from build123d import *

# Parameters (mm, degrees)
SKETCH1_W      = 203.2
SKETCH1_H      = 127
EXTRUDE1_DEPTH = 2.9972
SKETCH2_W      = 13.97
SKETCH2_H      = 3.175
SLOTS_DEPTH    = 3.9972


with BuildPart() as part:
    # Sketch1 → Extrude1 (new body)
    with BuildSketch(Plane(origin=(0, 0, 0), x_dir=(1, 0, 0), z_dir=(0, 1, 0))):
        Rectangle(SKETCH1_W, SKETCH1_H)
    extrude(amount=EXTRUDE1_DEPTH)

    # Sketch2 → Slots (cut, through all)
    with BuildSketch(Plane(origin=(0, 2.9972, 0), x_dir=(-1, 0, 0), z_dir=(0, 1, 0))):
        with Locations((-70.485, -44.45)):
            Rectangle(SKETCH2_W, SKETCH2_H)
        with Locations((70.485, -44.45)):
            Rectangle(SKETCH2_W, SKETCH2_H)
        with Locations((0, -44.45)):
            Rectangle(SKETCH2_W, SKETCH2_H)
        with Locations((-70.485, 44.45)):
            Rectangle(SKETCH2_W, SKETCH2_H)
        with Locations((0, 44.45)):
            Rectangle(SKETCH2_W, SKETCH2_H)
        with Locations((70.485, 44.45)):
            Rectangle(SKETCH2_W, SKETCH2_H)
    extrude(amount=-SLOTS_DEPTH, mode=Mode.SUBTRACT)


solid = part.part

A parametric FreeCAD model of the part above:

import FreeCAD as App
import Part
import Sketcher
from FreeCAD import Vector
Q = App.Units.Quantity


def add_polygon(sketch, points):
    """Adds a closed chain of lines whose ends are joined by coincident constraints."""
    first, n = sketch.GeometryCount, len(points)
    for a, b in zip(points, points[1:] + points[:1]):
        sketch.addGeometry(Part.LineSegment(App.Vector(*a, 0), App.Vector(*b, 0)), False)
    for i in range(n):
        sketch.addConstraint(Sketcher.Constraint("Coincident", first + i, 2, first + (i + 1) % n, 1))

doc = App.newDocument("Part")
body = doc.addObject("PartDesign::Body", "Body")

sketch1 = doc.addObject("Sketcher::SketchObject", "Sketch")
body.addObject(sketch1)
sketch1.AttachmentSupport = (doc.XZ_Plane, [""])
sketch1.MapMode = "FlatFace"
add_polygon(sketch1, [(-102, -64), (-102, 64), (102, 64), (102, -64)])
sketch1.addConstraint([
    Sketcher.Constraint("Vertical", 0),
    Sketcher.Constraint("Horizontal", 1),
    Sketcher.Constraint("Vertical", 2),
    Sketcher.Constraint("Horizontal", 3),
    Sketcher.Constraint("Symmetric", 0, 2, 2, 2, -1, 1),
    Sketcher.Constraint("DistanceX", 1, 1, 1, 2, Q("8 in")),
    Sketcher.Constraint("DistanceY", 0, 1, 0, 2, Q("5 in")),
])
pad1 = doc.addObject("PartDesign::Pad", "Pad")
body.addObject(pad1)
pad1.Profile = sketch1
pad1.Length = Q("0.118 in")
pad1.Reversed = True

sketch2 = doc.addObject("Sketcher::SketchObject", "Sketch001")
body.addObject(sketch2)
sketch2.AttachmentSupport = (doc.XZ_Plane, [""])
sketch2.MapMode = "FlatFace"
sketch2.AttachmentOffset = App.Placement(Vector(0, 0, -0.118 * 25.4), App.Rotation())
add_polygon(sketch2, [(77.5, -42.9), (77.5, -46), (63.5, -46), (63.5, -42.9)])
add_polygon(sketch2, [(-63.5, -42.9), (-63.5, -46), (-77.5, -46), (-77.5, -42.9)])
add_polygon(sketch2, [(7, -42.9), (7, -46), (-7, -46), (-7, -42.9)])
add_polygon(sketch2, [(77.5, 46), (77.5, 42.9), (63.5, 42.9), (63.5, 46)])
add_polygon(sketch2, [(7, 46), (7, 42.9), (-7, 42.9), (-7, 46)])
add_polygon(sketch2, [(-63.5, 46), (-63.5, 42.9), (-77.5, 42.9), (-77.5, 46)])
sketch2.addConstraint([
    Sketcher.Constraint("Vertical", 0),
    Sketcher.Constraint("Horizontal", 1),
    Sketcher.Constraint("Vertical", 2),
    Sketcher.Constraint("Horizontal", 3),
    Sketcher.Constraint("Vertical", 4),
    Sketcher.Constraint("Horizontal", 5),
    Sketcher.Constraint("Vertical", 6),
    Sketcher.Constraint("Horizontal", 7),
    Sketcher.Constraint("Vertical", 8),
    Sketcher.Constraint("Horizontal", 9),
    Sketcher.Constraint("Vertical", 10),
    Sketcher.Constraint("Horizontal", 11),
    Sketcher.Constraint("Vertical", 12),
    Sketcher.Constraint("Horizontal", 13),
    Sketcher.Constraint("Vertical", 14),
    Sketcher.Constraint("Horizontal", 15),
    Sketcher.Constraint("Vertical", 16),
    Sketcher.Constraint("Horizontal", 17),
    Sketcher.Constraint("Vertical", 18),
    Sketcher.Constraint("Horizontal", 19),
    Sketcher.Constraint("Vertical", 20),
    Sketcher.Constraint("Horizontal", 21),
    Sketcher.Constraint("Vertical", 22),
    Sketcher.Constraint("Horizontal", 23),
    Sketcher.Constraint("Symmetric", 6, 2, 12, 2, -1, 1),
    Sketcher.Constraint("Symmetric", 4, 2, 14, 2, -1, 1),
    Sketcher.Constraint("Symmetric", 10, 2, 16, 2, -1, 1),
    Sketcher.Constraint("Symmetric", 8, 2, 18, 2, -1, 1),
    Sketcher.Constraint("Symmetric", 2, 2, 20, 2, -1, 1),
    Sketcher.Constraint("Symmetric", 0, 2, 22, 2, -1, 1),
    Sketcher.Constraint("Symmetric", 1, 2, 4, 2, -2),
    Sketcher.Constraint("Symmetric", 3, 2, 6, 2, -2),
    Sketcher.Constraint("Horizontal", 5, 2, 8, 2),
    Sketcher.Constraint("Horizontal", 7, 2, 10, 2),
    Sketcher.Constraint("Vertical", 11, 2, 16, 2),
    Sketcher.Constraint("Equal", 7, 9),
    Sketcher.Constraint("DistanceX", 4, 2, 1, 2, Q("5 in")),
    Sketcher.Constraint("DistanceX", 1, 2, 1, 1, Q("0.55 in")),
    Sketcher.Constraint("DistanceY", 0, 2, 12, 2, Q("3.5 in")),
    Sketcher.Constraint("DistanceY", 0, 2, 0, 1, Q("0.125 in")),
])
pocket1 = doc.addObject("PartDesign::Pocket", "Pocket")
body.addObject(pocket1)
pocket1.Profile = sketch2
pocket1.Type = "ThroughAll"
pocket1.Reversed = True

doc.recompute()
